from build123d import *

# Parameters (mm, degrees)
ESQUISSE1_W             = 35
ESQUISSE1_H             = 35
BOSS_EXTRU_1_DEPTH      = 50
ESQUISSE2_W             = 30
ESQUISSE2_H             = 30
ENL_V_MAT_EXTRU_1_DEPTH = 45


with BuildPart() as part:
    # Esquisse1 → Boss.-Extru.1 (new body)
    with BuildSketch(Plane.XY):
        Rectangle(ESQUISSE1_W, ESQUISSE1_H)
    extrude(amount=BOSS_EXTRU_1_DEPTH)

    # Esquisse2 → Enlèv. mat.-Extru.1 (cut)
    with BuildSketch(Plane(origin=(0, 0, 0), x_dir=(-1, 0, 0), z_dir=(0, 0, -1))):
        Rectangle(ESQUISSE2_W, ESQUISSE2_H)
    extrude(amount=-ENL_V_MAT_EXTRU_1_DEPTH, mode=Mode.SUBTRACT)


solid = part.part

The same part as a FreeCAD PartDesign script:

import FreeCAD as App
import Part
import Sketcher
Q = App.Units.Quantity


def add_polygon(sketch, points):
    """Adds a closed chain of lines whose ends are joined by coincident constraints."""
    first, n = sketch.GeometryCount, len(points)
    for a, b in zip(points, points[1:] + points[:1]):
        sketch.addGeometry(Part.LineSegment(App.Vector(*a, 0), App.Vector(*b, 0)), False)
    for i in range(n):
        sketch.addConstraint(Sketcher.Constraint("Coincident", first + i, 2, first + (i + 1) % n, 1))

doc = App.newDocument("Part")
body = doc.addObject("PartDesign::Body", "Body")

# Sketch on XY plane
sketch1 = doc.addObject("Sketcher::SketchObject", "Sketch")
body.addObject(sketch1)
sketch1.AttachmentSupport = (doc.XY_Plane, [""])
sketch1.MapMode = "FlatFace"
add_polygon(sketch1, [(-18, 18), (-18, -18), (18, -18), (18, 18)])  # lines 0-3
sketch1.addConstraint([
    Sketcher.Constraint("Vertical", 0),
    Sketcher.Constraint("Horizontal", 1),
    Sketcher.Constraint("Vertical", 2),
    Sketcher.Constraint("Horizontal", 3),
    Sketcher.Constraint("Symmetric", 0, 2, 2, 2, -1, 1),
    Sketcher.Constraint("Equal", 3, 0),
    Sketcher.Constraint("DistanceX", 1, 1, 1, 2, Q("35 mm")),
])
pad1 = doc.addObject("PartDesign::Pad", "Pad")
body.addObject(pad1)
pad1.Profile = sketch1
pad1.Length = 50

# Sketch on XY plane
sketch2 = doc.addObject("Sketcher::SketchObject", "Sketch001")
body.addObject(sketch2)
sketch2.AttachmentSupport = (doc.XY_Plane, [""])
sketch2.MapMode = "FlatFace"
add_polygon(sketch2, [(15, 15), (15, -15), (-15, -15), (-15, 15)])  # lines 0-3
sketch2.addConstraint([
    Sketcher.Constraint("Vertical", 0),
    Sketcher.Constraint("Horizontal", 1),
    Sketcher.Constraint("Vertical", 2),
    Sketcher.Constraint("Horizontal", 3),
    Sketcher.Constraint("Symmetric", 0, 2, 2, 2, -1, 1),
    Sketcher.Constraint("Equal", 3, 0),
    Sketcher.Constraint("DistanceX", 1, 2, 1, 1, Q("30 mm")),
])
pocket1 = doc.addObject("PartDesign::Pocket", "Pocket")
body.addObject(pocket1)
pocket1.Profile = sketch2
pocket1.Length = 45
pocket1.Reversed = True

doc.recompute()
